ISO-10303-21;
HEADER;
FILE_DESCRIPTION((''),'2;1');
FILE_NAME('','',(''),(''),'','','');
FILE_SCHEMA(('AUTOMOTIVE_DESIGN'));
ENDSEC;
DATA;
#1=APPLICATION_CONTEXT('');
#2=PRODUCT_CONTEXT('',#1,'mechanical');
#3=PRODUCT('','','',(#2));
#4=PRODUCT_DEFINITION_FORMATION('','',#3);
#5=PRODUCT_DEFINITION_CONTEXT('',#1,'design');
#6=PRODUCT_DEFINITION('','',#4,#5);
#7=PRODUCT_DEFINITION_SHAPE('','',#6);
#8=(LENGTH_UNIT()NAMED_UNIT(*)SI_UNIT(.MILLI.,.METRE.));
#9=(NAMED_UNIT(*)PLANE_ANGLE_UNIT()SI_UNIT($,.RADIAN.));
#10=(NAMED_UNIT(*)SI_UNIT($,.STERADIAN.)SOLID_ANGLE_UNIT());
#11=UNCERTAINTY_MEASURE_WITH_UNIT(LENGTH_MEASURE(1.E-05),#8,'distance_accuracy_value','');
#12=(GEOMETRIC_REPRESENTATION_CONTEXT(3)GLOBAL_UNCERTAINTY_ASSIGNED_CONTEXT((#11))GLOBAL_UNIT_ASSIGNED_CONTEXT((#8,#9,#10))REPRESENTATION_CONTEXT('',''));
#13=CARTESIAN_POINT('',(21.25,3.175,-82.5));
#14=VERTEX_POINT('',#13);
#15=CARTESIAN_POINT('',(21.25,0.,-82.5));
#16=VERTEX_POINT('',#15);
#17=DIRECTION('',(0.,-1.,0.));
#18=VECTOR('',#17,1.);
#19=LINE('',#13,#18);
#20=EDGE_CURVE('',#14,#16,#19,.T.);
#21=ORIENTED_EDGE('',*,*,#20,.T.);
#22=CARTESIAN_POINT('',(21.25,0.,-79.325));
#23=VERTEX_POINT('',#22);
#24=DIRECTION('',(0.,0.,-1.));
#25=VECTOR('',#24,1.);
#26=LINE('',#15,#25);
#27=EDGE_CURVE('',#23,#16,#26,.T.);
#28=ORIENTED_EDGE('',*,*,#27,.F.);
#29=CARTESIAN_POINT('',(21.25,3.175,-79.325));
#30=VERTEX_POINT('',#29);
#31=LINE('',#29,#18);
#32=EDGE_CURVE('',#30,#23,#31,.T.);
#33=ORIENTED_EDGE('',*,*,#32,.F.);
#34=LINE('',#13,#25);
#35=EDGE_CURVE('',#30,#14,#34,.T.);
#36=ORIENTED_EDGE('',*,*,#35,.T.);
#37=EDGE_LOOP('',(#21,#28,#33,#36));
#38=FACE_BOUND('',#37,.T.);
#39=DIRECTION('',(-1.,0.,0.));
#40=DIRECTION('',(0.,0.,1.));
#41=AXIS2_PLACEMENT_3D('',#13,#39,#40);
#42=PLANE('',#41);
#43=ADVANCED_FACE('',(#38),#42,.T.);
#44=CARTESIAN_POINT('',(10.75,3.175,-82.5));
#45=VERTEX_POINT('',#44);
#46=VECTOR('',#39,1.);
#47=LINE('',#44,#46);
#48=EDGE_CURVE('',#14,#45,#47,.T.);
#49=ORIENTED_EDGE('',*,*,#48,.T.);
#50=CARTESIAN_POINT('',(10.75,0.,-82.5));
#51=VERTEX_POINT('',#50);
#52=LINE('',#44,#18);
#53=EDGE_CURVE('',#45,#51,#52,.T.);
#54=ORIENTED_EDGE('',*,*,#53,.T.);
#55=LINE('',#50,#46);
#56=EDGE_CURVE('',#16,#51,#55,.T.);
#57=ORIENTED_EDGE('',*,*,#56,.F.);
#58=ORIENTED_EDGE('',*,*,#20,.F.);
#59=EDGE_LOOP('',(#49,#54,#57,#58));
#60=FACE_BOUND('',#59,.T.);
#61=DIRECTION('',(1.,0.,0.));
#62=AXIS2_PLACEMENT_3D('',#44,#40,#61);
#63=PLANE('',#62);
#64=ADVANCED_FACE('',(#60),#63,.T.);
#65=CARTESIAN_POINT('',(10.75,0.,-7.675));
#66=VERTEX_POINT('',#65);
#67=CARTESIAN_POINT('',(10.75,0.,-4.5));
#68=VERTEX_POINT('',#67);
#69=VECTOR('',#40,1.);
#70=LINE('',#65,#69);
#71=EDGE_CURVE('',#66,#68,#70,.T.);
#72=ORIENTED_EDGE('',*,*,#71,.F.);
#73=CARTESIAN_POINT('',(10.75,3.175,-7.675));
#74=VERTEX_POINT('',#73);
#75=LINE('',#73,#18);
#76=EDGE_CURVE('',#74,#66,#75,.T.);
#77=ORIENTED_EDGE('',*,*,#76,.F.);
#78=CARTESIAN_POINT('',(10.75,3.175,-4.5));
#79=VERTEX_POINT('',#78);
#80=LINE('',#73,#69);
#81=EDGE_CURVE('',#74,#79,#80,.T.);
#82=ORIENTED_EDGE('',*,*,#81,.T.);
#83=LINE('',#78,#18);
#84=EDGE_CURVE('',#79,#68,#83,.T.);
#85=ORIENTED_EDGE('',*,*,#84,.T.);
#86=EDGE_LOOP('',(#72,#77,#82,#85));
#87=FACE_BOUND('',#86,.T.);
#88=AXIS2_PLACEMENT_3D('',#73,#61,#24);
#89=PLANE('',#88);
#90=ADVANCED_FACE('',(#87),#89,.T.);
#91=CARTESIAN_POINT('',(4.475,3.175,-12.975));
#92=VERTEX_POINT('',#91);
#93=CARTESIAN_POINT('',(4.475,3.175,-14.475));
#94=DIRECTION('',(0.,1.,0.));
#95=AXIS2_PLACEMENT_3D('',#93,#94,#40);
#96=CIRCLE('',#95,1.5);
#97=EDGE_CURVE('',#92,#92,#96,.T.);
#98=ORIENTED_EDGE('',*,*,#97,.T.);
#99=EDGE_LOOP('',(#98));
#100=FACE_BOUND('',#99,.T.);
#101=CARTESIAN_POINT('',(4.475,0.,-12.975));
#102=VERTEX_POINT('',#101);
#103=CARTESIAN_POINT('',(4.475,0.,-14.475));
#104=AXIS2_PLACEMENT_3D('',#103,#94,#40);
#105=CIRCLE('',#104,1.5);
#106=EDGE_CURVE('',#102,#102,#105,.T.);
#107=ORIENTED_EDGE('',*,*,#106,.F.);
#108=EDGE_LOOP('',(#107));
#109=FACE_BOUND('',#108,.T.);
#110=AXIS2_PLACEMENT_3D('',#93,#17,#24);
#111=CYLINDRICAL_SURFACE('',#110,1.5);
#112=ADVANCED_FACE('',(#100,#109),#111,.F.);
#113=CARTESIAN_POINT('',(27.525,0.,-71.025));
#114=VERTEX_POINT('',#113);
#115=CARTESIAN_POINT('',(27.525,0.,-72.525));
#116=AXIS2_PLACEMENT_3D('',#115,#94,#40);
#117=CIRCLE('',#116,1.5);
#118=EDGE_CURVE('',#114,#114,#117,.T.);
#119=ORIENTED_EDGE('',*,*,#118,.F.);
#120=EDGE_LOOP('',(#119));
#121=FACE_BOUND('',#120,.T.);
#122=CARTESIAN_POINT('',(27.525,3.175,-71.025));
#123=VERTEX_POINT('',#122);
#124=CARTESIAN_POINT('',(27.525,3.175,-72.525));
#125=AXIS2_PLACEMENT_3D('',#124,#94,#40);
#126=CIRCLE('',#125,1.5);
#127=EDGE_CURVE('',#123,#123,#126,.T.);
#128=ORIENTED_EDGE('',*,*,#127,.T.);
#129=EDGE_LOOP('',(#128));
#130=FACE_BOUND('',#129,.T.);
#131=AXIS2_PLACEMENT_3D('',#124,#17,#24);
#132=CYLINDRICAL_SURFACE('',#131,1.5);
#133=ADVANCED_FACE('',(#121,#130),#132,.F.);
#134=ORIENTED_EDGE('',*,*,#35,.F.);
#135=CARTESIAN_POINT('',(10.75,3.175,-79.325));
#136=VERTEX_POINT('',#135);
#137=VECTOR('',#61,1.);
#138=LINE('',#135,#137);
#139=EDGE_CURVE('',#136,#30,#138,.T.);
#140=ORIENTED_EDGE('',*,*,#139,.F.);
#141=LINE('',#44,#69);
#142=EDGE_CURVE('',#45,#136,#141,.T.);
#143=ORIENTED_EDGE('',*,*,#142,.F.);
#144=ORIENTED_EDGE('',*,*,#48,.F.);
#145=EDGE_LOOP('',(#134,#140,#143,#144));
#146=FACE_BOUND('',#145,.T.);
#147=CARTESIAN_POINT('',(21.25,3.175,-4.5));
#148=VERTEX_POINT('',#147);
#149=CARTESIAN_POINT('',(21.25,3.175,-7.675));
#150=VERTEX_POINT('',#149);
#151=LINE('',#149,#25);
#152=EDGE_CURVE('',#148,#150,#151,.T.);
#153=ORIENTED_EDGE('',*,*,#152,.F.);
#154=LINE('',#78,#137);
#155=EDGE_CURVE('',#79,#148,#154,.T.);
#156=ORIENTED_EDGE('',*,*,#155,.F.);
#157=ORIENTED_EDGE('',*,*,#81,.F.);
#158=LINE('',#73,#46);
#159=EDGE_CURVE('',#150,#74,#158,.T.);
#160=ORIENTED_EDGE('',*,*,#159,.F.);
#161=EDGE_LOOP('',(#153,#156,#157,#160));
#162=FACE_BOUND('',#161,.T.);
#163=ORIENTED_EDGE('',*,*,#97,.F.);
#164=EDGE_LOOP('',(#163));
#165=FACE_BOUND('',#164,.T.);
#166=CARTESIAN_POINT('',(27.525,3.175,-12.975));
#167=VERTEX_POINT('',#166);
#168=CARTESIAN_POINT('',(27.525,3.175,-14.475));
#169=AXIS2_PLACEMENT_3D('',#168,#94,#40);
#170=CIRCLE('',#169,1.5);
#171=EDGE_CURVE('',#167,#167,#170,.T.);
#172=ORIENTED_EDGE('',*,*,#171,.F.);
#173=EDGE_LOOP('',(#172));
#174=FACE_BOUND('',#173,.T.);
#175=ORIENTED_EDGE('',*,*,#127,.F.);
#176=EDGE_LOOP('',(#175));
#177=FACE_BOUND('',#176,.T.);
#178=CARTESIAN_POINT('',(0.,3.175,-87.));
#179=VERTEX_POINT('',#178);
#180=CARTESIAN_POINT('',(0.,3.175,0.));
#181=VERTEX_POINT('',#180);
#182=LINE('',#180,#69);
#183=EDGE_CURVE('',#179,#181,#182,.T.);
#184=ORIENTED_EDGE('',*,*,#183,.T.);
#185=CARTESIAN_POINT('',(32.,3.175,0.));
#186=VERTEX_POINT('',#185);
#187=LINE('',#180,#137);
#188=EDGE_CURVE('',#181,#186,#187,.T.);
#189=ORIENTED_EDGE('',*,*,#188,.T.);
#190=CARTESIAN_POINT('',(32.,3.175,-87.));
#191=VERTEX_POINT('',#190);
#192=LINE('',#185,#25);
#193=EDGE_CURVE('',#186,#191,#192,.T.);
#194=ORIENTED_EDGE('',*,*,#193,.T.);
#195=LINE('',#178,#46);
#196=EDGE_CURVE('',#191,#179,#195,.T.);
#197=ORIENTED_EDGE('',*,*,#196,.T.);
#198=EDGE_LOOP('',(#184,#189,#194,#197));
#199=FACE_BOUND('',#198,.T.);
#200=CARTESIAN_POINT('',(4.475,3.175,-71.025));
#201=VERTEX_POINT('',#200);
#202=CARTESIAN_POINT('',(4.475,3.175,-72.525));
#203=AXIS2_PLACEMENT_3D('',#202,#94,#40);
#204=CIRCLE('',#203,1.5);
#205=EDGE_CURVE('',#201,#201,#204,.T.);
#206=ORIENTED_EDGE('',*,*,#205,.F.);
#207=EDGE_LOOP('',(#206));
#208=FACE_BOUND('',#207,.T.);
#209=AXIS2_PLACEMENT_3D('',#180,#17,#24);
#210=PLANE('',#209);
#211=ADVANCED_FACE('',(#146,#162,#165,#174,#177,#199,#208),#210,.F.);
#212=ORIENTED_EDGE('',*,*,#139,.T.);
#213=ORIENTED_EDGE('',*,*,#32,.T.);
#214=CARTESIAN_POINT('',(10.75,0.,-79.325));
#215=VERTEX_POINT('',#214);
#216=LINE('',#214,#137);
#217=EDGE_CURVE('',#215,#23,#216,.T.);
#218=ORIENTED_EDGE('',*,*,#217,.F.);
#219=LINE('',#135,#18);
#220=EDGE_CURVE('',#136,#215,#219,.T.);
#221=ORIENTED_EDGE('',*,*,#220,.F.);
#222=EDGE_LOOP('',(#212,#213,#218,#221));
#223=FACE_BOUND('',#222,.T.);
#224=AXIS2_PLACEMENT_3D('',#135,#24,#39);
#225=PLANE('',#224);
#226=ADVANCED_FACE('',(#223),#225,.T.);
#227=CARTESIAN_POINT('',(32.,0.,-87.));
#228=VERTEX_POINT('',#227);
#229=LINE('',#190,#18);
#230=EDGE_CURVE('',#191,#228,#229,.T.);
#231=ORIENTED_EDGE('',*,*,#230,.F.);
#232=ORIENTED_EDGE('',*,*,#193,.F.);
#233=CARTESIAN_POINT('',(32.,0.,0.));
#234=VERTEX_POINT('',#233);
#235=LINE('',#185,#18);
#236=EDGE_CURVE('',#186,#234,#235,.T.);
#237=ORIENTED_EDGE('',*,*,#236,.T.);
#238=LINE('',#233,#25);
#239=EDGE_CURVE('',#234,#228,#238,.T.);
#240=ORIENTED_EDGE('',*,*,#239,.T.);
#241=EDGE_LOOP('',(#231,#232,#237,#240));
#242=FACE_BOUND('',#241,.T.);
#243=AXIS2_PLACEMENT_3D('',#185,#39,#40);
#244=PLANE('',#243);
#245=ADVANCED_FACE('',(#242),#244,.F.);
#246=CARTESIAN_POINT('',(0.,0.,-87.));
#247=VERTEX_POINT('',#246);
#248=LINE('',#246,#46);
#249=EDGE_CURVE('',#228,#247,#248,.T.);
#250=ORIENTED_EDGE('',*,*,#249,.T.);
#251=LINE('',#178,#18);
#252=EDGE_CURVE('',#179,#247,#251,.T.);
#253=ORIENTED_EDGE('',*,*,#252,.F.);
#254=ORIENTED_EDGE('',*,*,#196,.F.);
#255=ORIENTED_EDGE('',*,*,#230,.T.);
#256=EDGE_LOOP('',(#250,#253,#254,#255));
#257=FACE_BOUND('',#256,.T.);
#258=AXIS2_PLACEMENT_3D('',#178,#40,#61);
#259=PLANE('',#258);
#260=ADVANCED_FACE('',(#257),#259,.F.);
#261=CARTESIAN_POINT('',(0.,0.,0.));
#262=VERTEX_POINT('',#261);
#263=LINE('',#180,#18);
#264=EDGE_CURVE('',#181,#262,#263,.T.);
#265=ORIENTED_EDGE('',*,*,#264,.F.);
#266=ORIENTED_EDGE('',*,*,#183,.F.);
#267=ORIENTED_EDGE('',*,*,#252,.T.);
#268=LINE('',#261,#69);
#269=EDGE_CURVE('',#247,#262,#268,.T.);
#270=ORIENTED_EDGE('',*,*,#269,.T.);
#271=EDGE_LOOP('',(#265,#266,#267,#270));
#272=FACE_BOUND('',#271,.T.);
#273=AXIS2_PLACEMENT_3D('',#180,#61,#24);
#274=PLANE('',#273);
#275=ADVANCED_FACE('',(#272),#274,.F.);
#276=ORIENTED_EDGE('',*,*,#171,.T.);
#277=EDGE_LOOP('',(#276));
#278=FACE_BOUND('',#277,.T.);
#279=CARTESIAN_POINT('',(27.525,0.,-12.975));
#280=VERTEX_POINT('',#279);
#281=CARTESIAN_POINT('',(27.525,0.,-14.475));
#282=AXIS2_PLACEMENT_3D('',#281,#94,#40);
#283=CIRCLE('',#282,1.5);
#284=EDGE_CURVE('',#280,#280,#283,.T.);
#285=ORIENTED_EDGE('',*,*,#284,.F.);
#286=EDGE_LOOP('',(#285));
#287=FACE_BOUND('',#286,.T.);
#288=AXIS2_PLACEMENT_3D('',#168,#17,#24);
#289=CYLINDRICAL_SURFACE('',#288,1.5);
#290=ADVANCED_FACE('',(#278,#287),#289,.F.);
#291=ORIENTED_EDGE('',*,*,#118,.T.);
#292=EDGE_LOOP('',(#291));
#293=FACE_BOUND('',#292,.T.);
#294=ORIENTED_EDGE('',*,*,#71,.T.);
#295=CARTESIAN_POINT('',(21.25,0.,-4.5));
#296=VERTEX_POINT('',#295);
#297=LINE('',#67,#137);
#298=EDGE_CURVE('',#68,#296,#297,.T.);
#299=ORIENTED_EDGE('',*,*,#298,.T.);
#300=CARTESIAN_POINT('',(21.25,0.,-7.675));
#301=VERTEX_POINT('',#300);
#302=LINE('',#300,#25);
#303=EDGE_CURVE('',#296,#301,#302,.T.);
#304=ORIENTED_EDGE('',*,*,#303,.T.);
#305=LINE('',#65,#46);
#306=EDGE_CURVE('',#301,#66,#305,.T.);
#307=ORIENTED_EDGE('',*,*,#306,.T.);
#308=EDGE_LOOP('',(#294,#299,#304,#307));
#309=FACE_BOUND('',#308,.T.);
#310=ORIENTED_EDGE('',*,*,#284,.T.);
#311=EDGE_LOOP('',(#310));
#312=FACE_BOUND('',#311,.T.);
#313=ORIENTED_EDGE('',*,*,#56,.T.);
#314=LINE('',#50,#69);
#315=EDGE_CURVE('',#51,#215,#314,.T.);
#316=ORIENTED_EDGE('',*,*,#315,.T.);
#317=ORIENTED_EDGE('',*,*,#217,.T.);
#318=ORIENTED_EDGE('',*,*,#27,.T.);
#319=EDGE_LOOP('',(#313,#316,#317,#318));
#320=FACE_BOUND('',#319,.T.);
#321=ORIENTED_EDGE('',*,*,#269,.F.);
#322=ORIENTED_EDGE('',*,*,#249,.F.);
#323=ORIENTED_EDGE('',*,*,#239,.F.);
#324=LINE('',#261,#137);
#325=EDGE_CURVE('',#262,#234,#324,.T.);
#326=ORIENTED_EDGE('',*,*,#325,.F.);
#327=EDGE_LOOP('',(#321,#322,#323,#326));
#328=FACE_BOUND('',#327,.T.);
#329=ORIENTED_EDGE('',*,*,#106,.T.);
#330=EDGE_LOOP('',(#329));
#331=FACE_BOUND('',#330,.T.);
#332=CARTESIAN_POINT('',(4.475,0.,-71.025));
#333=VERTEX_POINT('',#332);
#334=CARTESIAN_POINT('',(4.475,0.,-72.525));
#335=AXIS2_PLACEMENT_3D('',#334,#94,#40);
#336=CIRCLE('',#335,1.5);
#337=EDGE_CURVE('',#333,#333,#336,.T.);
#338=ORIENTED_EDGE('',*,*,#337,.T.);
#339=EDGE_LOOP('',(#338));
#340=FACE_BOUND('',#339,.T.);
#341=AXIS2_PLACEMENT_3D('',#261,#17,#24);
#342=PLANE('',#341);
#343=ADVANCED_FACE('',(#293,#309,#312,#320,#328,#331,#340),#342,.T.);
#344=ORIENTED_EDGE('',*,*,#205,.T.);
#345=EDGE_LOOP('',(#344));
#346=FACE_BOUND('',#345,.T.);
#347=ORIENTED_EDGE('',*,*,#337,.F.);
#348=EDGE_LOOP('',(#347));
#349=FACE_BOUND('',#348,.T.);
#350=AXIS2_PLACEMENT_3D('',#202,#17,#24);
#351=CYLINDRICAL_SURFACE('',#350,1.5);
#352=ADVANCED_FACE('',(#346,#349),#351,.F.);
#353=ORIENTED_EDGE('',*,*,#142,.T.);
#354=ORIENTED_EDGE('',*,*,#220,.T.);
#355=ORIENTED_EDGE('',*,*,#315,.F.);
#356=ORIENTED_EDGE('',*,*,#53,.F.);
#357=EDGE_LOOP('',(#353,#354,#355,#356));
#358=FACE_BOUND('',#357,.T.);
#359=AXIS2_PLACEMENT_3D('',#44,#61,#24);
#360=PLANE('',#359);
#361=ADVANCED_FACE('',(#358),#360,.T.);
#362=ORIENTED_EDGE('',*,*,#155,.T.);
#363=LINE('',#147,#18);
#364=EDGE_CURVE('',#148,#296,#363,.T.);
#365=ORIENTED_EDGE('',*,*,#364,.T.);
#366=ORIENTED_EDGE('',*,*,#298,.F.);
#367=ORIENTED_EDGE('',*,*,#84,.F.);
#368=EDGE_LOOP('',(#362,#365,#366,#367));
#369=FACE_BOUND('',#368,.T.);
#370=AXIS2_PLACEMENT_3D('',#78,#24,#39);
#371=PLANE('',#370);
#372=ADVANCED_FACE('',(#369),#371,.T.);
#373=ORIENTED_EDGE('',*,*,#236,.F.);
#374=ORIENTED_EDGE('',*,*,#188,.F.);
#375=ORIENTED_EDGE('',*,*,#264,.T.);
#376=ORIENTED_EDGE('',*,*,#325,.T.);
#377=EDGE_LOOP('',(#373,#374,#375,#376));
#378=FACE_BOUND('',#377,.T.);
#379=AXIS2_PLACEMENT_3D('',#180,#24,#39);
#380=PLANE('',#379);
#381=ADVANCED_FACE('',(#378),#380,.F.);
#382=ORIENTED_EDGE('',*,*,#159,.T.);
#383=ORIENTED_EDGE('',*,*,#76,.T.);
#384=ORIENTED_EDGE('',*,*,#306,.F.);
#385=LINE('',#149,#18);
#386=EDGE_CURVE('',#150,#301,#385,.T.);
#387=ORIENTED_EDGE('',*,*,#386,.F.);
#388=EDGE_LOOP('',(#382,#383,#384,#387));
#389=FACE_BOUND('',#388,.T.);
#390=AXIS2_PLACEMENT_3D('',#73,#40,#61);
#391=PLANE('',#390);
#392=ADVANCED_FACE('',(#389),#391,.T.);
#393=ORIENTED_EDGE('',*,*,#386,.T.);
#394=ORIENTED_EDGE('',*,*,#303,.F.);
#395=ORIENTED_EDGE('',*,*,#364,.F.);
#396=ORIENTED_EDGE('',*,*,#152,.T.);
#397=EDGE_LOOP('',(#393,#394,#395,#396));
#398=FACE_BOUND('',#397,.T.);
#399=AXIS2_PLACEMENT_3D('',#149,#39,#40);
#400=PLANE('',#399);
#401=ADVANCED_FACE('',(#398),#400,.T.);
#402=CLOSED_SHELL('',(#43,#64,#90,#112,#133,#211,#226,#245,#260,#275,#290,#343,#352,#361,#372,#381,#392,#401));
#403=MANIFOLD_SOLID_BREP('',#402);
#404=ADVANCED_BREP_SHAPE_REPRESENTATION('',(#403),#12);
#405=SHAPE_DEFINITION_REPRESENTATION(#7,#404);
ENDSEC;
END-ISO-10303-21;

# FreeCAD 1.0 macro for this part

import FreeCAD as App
import Part
import Sketcher
from FreeCAD import Vector


def add_polygon(sketch, points):
    """Adds a closed chain of lines whose ends are joined by coincident constraints."""
    first, n = sketch.GeometryCount, len(points)
    for a, b in zip(points, points[1:] + points[:1]):
        sketch.addGeometry(Part.LineSegment(App.Vector(*a, 0), App.Vector(*b, 0)), False)
    for i in range(n):
        sketch.addConstraint(Sketcher.Constraint("Coincident", first + i, 2, first + (i + 1) % n, 1))

doc = App.newDocument("Part")
body = doc.addObject("PartDesign::Body", "Body")

sketch1 = doc.addObject("Sketcher::SketchObject", "Sketch")
body.addObject(sketch1)
sketch1.AttachmentSupport = (doc.XZ_Plane, [""])
sketch1.MapMode = "FlatFace"
add_polygon(sketch1, [(0, -87), (0, 0), (32, 0), (32, -87)])
sketch1.addGeometry(Part.Circle(Vector(4.5, -14.5, 0), Vector(0, 0, 1), 1.5), False)
add_polygon(sketch1, [(21.2, -4.5), (10.8, -4.5), (10.8, -7.7), (21.2, -7.7)])
sketch1.addGeometry(Part.Circle(Vector(27.5, -14.5, 0), Vector(0, 0, 1), 1.5), False)
sketch1.addGeometry(Part.Circle(Vector(4.5, -72.5, 0), Vector(0, 0, 1), 1.5), False)
add_polygon(sketch1, [(21.2, -79.3), (10.8, -79.3), (10.8, -82.5), (21.2, -82.5)])
sketch1.addGeometry(Part.Circle(Vector(27.5, -72.5, 0), Vector(0, 0, 1), 1.5), False)
sketch1.addConstraint([
    Sketcher.Constraint("Vertical", 0),
    Sketcher.Constraint("Horizontal", 1),
    Sketcher.Constraint("Vertical", 2),
    Sketcher.Constraint("Horizontal", 3),
    Sketcher.Constraint("Horizontal", 5),
    Sketcher.Constraint("Vertical", 6),
    Sketcher.Constraint("Horizontal", 7),
    Sketcher.Constraint("Vertical", 8),
    Sketcher.Constraint("Horizontal", 11),
    Sketcher.Constraint("Vertical", 12),
    Sketcher.Constraint("Horizontal", 13),
    Sketcher.Constraint("Vertical", 14),
    Sketcher.Constraint("Coincident", 0, 2, -1, 1),
    Sketcher.Constraint("Equal", 4, 9),
    Sketcher.Constraint("Equal", 9, 10),
    Sketcher.Constraint("Equal", 10, 15),
    Sketcher.Constraint("Horizontal", 4, 3, 9, 3),
    Sketcher.Constraint("Horizontal", 10, 3, 15, 3),
    Sketcher.Constraint("Vertical", 4, 3, 10, 3),
    Sketcher.Constraint("Vertical", 9, 3, 15, 3),
    Sketcher.Constraint("Vertical", 6, 2, 11, 2),
    Sketcher.Constraint("Vertical", 8, 2, 13, 2),
    Sketcher.Constraint("Equal", 8, 12),
    Sketcher.Constraint("Diameter", 4, 3.0),
    Sketcher.Constraint("DistanceX", 1, 1, 1, 2, 32.0),
    Sketcher.Constraint("DistanceY", 0, 1, 0, 2, 87.0),
    Sketcher.Constraint("DistanceX", 5, 2, 5, 1, 10.5),
    Sketcher.Constraint("DistanceY", 5, 2, -1, 1, 4.5),
    Sketcher.Constraint("DistanceY", 12, 2, -1, 1, 82.5),
    Sketcher.Constraint("DistanceY", 4, 3, 6, 2, 6.8),
    Sketcher.Constraint("DistanceY", 11, 2, 10, 3, 6.8),
    Sketcher.Constraint("DistanceY", 6, 2, 6, 1, 3.175),
    Sketcher.Constraint("DistanceX", -1, 1, 5, 2, 10.75),
    Sketcher.Constraint("DistanceX", 4, 3, 9, 3, 23.05),
    Sketcher.Constraint("DistanceX", -1, 1, 4, 3, 4.475),
])
pad1 = doc.addObject("PartDesign::Pad", "Pad")
body.addObject(pad1)
pad1.Profile = sketch1
pad1.Length = 3.175
pad1.Reversed = True

doc.recompute()
